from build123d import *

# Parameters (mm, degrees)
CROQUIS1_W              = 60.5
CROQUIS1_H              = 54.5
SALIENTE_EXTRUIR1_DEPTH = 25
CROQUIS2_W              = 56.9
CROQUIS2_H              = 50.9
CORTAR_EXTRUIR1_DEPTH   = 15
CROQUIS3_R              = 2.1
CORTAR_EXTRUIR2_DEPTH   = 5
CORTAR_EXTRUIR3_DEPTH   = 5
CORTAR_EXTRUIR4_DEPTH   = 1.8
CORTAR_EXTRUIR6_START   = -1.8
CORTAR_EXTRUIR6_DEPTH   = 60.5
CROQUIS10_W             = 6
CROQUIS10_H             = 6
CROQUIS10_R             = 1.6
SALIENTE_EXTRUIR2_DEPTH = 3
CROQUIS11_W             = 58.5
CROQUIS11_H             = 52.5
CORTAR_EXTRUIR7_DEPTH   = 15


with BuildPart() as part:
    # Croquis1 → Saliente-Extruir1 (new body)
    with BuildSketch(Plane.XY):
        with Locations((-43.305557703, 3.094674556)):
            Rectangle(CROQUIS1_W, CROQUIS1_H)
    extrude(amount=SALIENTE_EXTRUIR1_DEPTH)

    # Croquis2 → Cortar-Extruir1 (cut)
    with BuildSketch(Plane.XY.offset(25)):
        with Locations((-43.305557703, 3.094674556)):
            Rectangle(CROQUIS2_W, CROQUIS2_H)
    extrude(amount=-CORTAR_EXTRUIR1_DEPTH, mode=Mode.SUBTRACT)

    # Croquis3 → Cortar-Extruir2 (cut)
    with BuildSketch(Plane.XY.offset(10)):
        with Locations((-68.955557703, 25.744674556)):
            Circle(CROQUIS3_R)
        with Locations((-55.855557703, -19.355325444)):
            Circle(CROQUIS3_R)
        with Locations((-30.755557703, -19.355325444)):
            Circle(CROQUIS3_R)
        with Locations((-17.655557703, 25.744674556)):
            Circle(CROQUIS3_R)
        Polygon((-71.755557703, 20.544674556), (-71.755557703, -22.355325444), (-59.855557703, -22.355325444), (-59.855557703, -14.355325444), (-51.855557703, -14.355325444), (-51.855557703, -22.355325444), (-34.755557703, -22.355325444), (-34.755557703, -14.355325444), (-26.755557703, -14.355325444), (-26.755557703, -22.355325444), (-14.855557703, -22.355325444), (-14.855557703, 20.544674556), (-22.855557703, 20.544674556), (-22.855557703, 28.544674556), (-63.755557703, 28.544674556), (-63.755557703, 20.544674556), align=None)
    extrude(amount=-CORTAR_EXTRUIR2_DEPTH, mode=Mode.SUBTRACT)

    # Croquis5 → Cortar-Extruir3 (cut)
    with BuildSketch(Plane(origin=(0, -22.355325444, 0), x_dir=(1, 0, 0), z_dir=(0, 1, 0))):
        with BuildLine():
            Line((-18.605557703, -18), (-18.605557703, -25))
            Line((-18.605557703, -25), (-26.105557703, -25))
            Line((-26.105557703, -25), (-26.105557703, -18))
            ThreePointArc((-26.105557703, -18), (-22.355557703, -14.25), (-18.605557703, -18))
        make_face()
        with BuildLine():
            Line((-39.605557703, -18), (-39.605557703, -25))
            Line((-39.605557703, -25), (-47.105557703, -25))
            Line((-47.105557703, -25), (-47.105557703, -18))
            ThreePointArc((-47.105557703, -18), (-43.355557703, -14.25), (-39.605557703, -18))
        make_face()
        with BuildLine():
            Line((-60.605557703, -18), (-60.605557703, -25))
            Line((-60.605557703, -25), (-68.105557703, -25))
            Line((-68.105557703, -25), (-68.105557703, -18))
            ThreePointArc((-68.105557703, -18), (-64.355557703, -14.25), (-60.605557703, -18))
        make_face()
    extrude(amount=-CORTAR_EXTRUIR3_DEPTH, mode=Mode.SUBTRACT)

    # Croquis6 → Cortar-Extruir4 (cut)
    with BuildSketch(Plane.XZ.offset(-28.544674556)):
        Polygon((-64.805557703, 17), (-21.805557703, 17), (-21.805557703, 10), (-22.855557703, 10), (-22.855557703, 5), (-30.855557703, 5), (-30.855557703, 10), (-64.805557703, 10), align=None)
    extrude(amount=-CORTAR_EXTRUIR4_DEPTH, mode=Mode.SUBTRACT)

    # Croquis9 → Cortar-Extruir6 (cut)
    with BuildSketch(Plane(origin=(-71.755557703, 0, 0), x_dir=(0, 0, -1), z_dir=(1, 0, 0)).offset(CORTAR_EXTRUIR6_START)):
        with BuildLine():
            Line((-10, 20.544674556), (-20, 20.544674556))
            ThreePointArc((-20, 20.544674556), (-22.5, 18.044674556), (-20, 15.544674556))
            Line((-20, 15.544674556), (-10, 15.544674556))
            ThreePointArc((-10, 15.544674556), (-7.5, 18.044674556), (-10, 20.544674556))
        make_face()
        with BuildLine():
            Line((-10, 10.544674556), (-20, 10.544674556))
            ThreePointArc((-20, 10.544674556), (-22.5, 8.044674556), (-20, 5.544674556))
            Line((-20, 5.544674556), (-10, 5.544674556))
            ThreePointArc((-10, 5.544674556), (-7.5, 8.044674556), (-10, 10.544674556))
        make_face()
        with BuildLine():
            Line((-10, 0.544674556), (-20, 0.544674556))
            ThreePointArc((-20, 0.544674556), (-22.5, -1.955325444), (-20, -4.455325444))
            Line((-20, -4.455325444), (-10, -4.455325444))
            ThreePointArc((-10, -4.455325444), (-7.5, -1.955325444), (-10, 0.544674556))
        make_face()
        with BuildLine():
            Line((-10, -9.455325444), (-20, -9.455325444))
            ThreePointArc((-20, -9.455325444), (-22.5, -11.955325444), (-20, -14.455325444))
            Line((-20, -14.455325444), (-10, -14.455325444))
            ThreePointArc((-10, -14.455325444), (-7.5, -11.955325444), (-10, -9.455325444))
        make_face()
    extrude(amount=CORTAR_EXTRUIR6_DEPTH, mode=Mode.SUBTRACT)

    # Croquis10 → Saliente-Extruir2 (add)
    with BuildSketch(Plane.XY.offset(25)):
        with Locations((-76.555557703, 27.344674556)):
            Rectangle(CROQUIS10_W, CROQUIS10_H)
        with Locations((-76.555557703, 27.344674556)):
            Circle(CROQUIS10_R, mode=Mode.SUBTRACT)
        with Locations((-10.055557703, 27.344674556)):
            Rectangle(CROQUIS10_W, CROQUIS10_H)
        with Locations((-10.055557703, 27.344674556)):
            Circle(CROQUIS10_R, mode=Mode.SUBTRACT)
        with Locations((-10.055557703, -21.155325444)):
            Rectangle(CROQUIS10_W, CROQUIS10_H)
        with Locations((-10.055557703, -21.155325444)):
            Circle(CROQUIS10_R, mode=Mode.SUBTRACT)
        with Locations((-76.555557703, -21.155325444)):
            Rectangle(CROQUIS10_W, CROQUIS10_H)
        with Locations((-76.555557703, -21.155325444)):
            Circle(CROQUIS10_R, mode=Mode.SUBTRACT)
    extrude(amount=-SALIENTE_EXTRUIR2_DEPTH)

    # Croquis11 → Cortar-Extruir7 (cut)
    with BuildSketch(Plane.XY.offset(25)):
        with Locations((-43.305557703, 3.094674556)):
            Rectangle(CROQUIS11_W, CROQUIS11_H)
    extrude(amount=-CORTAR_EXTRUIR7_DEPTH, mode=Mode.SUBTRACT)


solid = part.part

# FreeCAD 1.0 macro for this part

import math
import FreeCAD as App
import Part
import Sketcher

V = App.Vector
Q = App.Units.Quantity


def add_polygon(sketch, points):
    """Adds a closed chain of lines whose ends are joined by coincident constraints."""
    first, n = sketch.GeometryCount, len(points)
    for a, b in zip(points, points[1:] + points[:1]):
        sketch.addGeometry(Part.LineSegment(App.Vector(*a, 0), App.Vector(*b, 0)), False)
    for i in range(n):
        sketch.addConstraint(Sketcher.Constraint("Coincident", first + i, 2, first + (i + 1) % n, 1))

doc = App.newDocument("Part")
body = doc.addObject("PartDesign::Body", "Body")

# Sketch on XY plane
sketch1 = body.newObject("Sketcher::SketchObject", "Sketch")
sketch1.AttachmentSupport = (doc.getObject("XY_Plane"), [""])
sketch1.MapMode = "FlatFace"
add_polygon(sketch1, [(-74, 30), (-74, -24), (-13, -24), (-13, 30)])  # lines 0-3
sketch1.addConstraint([
    Sketcher.Constraint("Vertical", 0),
    Sketcher.Constraint("Horizontal", 1),
    Sketcher.Constraint("Vertical", 2),
    Sketcher.Constraint("Horizontal", 3),
    Sketcher.Constraint("DistanceX", 1, 1, 1, 2, Q("60.5 mm")),
    Sketcher.Constraint("DistanceY", 0, 2, 0, 1, Q("54.5 mm")),
    Sketcher.Constraint("DistanceX", 0, 2, -1, 1, Q("73.555558 mm")),
    Sketcher.Constraint("DistanceY", 0, 2, -1, 1, Q("24.155325 mm")),
])
pad1 = body.newObject("PartDesign::Pad", "Pad")
pad1.Profile = sketch1
pad1.Length = 25

# Sketch on XY plane
sketch2 = body.newObject("Sketcher::SketchObject", "Sketch001")
sketch2.AttachmentSupport = (doc.getObject("XY_Plane"), [""])
sketch2.MapMode = "FlatFace"
sketch2.AttachmentOffset = App.Placement(V(0, 0, 25), App.Rotation())
add_polygon(sketch2, [(-72, 29), (-72, -22), (-15, -22), (-15, 29)])  # lines 0-3
sketch2.addConstraint([
    Sketcher.Constraint("Vertical", 0),
    Sketcher.Constraint("Horizontal", 1),
    Sketcher.Constraint("Vertical", 2),
    Sketcher.Constraint("Horizontal", 3),
    Sketcher.Constraint("DistanceX", 1, 1, 1, 2, Q("56.9 mm")),
    Sketcher.Constraint("DistanceY", 0, 2, 0, 1, Q("50.9 mm")),
    Sketcher.Constraint("DistanceX", 0, 2, -1, 1, Q("71.755558 mm")),
    Sketcher.Constraint("DistanceY", 0, 2, -1, 1, Q("22.355325 mm")),
])
pocket1 = body.newObject("PartDesign::Pocket", "Pocket")
pocket1.Profile = sketch2
pocket1.Length = 15

# Sketch on XY plane
sketch3 = body.newObject("Sketcher::SketchObject", "Sketch002")
sketch3.AttachmentSupport = (doc.getObject("XY_Plane"), [""])
sketch3.MapMode = "FlatFace"
sketch3.AttachmentOffset = App.Placement(V(0, 0, 10), App.Rotation())
sketch3.addGeometry(Part.Circle(V(-69, 25.7, 0), V(0, 0, 1), 2.1), False)  # 0
sketch3.addGeometry(Part.Circle(V(-55.9, -19.4, 0), V(0, 0, 1), 2.1), False)  # 1
sketch3.addGeometry(Part.Circle(V(-30.8, -19.4, 0), V(0, 0, 1), 2.1), False)  # 2
sketch3.addGeometry(Part.Circle(V(-17.7, 25.7, 0), V(0, 0, 1), 2.1), False)  # 3
add_polygon(sketch3, [(-71.8, 20.5), (-71.8, -22.4), (-59.9, -22.4), (-59.9, -14.4), (-51.9, -14.4), (-51.9, -22.4), (-34.8, -22.4), (-34.8, -14.4), (-26.8, -14.4), (-26.8, -22.4), (-14.9, -22.4), (-14.9, 20.5), (-22.9, 20.5), (-22.9, 28.5), (-63.8, 28.5), (-63.8, 20.5)])  # lines 4-19
sketch3.addConstraint([
    Sketcher.Constraint("Vertical", 4),
    Sketcher.Constraint("Horizontal", 5),
    Sketcher.Constraint("Vertical", 6),
    Sketcher.Constraint("Horizontal", 7),
    Sketcher.Constraint("Vertical", 8),
    Sketcher.Constraint("Horizontal", 9),
    Sketcher.Constraint("Vertical", 10),
    Sketcher.Constraint("Horizontal", 11),
    Sketcher.Constraint("Vertical", 12),
    Sketcher.Constraint("Horizontal", 13),
    Sketcher.Constraint("Vertical", 14),
    Sketcher.Constraint("Horizontal", 15),
    Sketcher.Constraint("Vertical", 16),
    Sketcher.Constraint("Horizontal", 17),
    Sketcher.Constraint("Vertical", 18),
    Sketcher.Constraint("Horizontal", 19),
    Sketcher.Constraint("Equal", 0, 1),
    Sketcher.Constraint("Equal", 1, 2),
    Sketcher.Constraint("Equal", 2, 3),
    Sketcher.Constraint("Horizontal", 1, 3, 2, 3),
    Sketcher.Constraint("Horizontal", 0, 3, 3, 3),
    Sketcher.Constraint("Horizontal", 5, 2, 8, 2),
    Sketcher.Constraint("Horizontal", 7, 2, 10, 2),
    Sketcher.Constraint("Horizontal", 9, 2, 12, 2),
    Sketcher.Constraint("Horizontal", 15, 2, 18, 2),
    Sketcher.Constraint("Equal", 7, 11),
    Sketcher.Constraint("Equal", 5, 13),
    Sketcher.Constraint("Equal", 11, 15),
    Sketcher.Constraint("Equal", 15, 19),
    Sketcher.Constraint("Equal", 19, 6),
    Sketcher.Constraint("Equal", 12, 16),
    Sketcher.Constraint("Diameter", 0, Q("4.2 mm")),
    Sketcher.Constraint("DistanceX", 7, 1, 7, 2, Q("8 mm")),
    Sketcher.Constraint("DistanceX", 5, 1, 5, 2, Q("11.9 mm")),
    Sketcher.Constraint("DistanceX", 9, 1, 9, 2, Q("17.1 mm")),
    Sketcher.Constraint("DistanceY", 4, 2, 4, 1, Q("42.9 mm")),
    Sketcher.Constraint("DistanceY", 4, 2, 1, 3, Q("3 mm")),
    Sketcher.Constraint("DistanceX", 4, 2, 2, 3, Q("41 mm")),
    Sketcher.Constraint("DistanceX", 5, 2, 1, 3, Q("4 mm")),
    Sketcher.Constraint("DistanceX", 0, 3, 1, 3, Q("13.1 mm")),
    Sketcher.Constraint("DistanceY", 1, 3, 0, 3, Q("45.1 mm")),
    Sketcher.Constraint("DistanceX", 2, 3, 3, 3, Q("13.1 mm")),
    Sketcher.Constraint("DistanceX", 0, 3, -1, 1, Q("68.955558 mm")),
    Sketcher.Constraint("DistanceY", -1, 1, 0, 3, Q("25.744675 mm")),
])
pocket2 = body.newObject("PartDesign::Pocket", "Pocket001")
pocket2.Profile = sketch3
pocket2.Length = 5

# Sketch on XZ plane
sketch4 = body.newObject("Sketcher::SketchObject", "Sketch003")
sketch4.AttachmentSupport = (doc.getObject("XZ_Plane"), [""])
sketch4.MapMode = "FlatFace"
sketch4.AttachmentOffset = App.Placement(V(0, 0, 22.355325), App.Rotation())
sketch4.addGeometry([
    Part.LineSegment(V(-18.6, 25, 0), V(-18.6, 18, 0)),  # 0
    Part.ArcOfCircle(Part.Circle(V(-22.4, 18, 0), V(0, 0, 1), 3.8), math.radians(180), math.radians(360)),  # 1
    Part.LineSegment(V(-26.1, 18, 0), V(-26.1, 25, 0)),  # 2
    Part.LineSegment(V(-26.1, 25, 0), V(-18.6, 25, 0)),  # 3
    Part.LineSegment(V(-39.6, 25, 0), V(-39.6, 18, 0)),  # 4
    Part.ArcOfCircle(Part.Circle(V(-43.4, 18, 0), V(0, 0, 1), 3.8), math.radians(180), math.radians(360)),  # 5
    Part.LineSegment(V(-47.1, 18, 0), V(-47.1, 25, 0)),  # 6
    Part.LineSegment(V(-47.1, 25, 0), V(-39.6, 25, 0)),  # 7
    Part.LineSegment(V(-60.6, 25, 0), V(-60.6, 18, 0)),  # 8
    Part.ArcOfCircle(Part.Circle(V(-64.4, 18, 0), V(0, 0, 1), 3.8), math.radians(180), math.radians(360)),  # 9
    Part.LineSegment(V(-68.1, 18, 0), V(-68.1, 25, 0)),  # 10
    Part.LineSegment(V(-68.1, 25, 0), V(-60.6, 25, 0)),  # 11
], False)
sketch4.addConstraint([
    Sketcher.Constraint("Tangent", 0, 2, 1, 2),
    Sketcher.Constraint("Tangent", 1, 1, 2, 1),
    Sketcher.Constraint("Coincident", 2, 2, 3, 1),
    Sketcher.Constraint("Coincident", 3, 2, 0, 1),
    Sketcher.Constraint("Tangent", 4, 2, 5, 2),
    Sketcher.Constraint("Tangent", 5, 1, 6, 1),
    Sketcher.Constraint("Coincident", 6, 2, 7, 1),
    Sketcher.Constraint("Coincident", 7, 2, 4, 1),
    Sketcher.Constraint("Tangent", 8, 2, 9, 2),
    Sketcher.Constraint("Tangent", 9, 1, 10, 1),
    Sketcher.Constraint("Coincident", 10, 2, 11, 1),
    Sketcher.Constraint("Coincident", 11, 2, 8, 1),
    Sketcher.Constraint("Vertical", 0),
    Sketcher.Constraint("Vertical", 2),
    Sketcher.Constraint("Horizontal", 3),
    Sketcher.Constraint("Vertical", 4),
    Sketcher.Constraint("Vertical", 6),
    Sketcher.Constraint("Horizontal", 7),
    Sketcher.Constraint("Vertical", 8),
    Sketcher.Constraint("Vertical", 10),
    Sketcher.Constraint("Horizontal", 11),
    Sketcher.Constraint("Equal", 1, 5),
    Sketcher.Constraint("Equal", 5, 9),
    Sketcher.Constraint("Horizontal", 1, 3, 5, 3),
    Sketcher.Constraint("Horizontal", 5, 3, 9, 3),
    Sketcher.Constraint("Horizontal", 3, 2, 6, 2),
    Sketcher.Constraint("Horizontal", 7, 2, 10, 2),
    Sketcher.Constraint("DistanceY", 0, 2, 0, 1, Q("7 mm")),
    Sketcher.Constraint("Radius", 1, Q("3.75 mm")),
    Sketcher.Constraint("DistanceY", -1, 1, 1, 3, Q("18 mm")),
    Sketcher.Constraint("DistanceX", 5, 3, 1, 3, Q("21 mm")),
    Sketcher.Constraint("DistanceX", 9, 3, 5, 3, Q("21 mm")),
    Sketcher.Constraint("DistanceX", 1, 3, -1, 1, Q("22.355558 mm")),
])
pocket3 = body.newObject("PartDesign::Pocket", "Pocket002")
pocket3.Profile = sketch4
pocket3.Length = 5
pocket3.Reversed = True

# Sketch on XZ plane
sketch5 = body.newObject("Sketcher::SketchObject", "Sketch004")
sketch5.AttachmentSupport = (doc.getObject("XZ_Plane"), [""])
sketch5.MapMode = "FlatFace"
sketch5.AttachmentOffset = App.Placement(V(0, 0, -28.544675), App.Rotation())
add_polygon(sketch5, [(-21.8, 17), (-64.8, 17), (-64.8, 10), (-30.9, 10), (-30.9, 5), (-22.9, 5), (-22.9, 10), (-21.8, 10)])  # lines 0-7
sketch5.addConstraint([
    Sketcher.Constraint("Horizontal", 0),
    Sketcher.Constraint("Vertical", 1),
    Sketcher.Constraint("Horizontal", 2),
    Sketcher.Constraint("Vertical", 3),
    Sketcher.Constraint("Horizontal", 4),
    Sketcher.Constraint("Vertical", 5),
    Sketcher.Constraint("Horizontal", 6),
    Sketcher.Constraint("Vertical", 7),
    Sketcher.Constraint("Horizontal", 2, 2, 5, 2),
    Sketcher.Constraint("DistanceX", 0, 2, 0, 1, Q("43 mm")),
    Sketcher.Constraint("DistanceX", 4, 1, 4, 2, Q("8 mm")),
    Sketcher.Constraint("DistanceY", 1, 2, 1, 1, Q("7 mm")),
    Sketcher.Constraint("DistanceY", 3, 2, 3, 1, Q("5 mm")),
    Sketcher.Constraint("DistanceY", -1, 1, 0, 2, Q("17 mm")),
    Sketcher.Constraint("DistanceX", 2, 1, 2, 2, Q("33.95 mm")),
    Sketcher.Constraint("DistanceX", 0, 2, -1, 1, Q("64.805558 mm")),
])
pocket4 = body.newObject("PartDesign::Pocket", "Pocket003")
pocket4.Profile = sketch5
pocket4.Length = 1.8

# Sketch on YZ plane
sketch6 = body.newObject("Sketcher::SketchObject", "Sketch005")
sketch6.AttachmentSupport = (doc.getObject("YZ_Plane"), [""])
sketch6.MapMode = "FlatFace"
sketch6.AttachmentOffset = App.Placement(V(0, 0, -73.555558), App.Rotation())
sketch6.addGeometry([
    Part.LineSegment(V(20.5, 10, 0), V(20.5, 20, 0)),  # 0
    Part.ArcOfCircle(Part.Circle(V(18, 20, 0), V(0, 0, 1), 2.5), math.radians(0), math.radians(180)),  # 1
    Part.LineSegment(V(15.5, 20, 0), V(15.5, 10, 0)),  # 2
    Part.ArcOfCircle(Part.Circle(V(18, 10, 0), V(0, 0, 1), 2.5), math.radians(180), math.radians(360)),  # 3
    Part.LineSegment(V(10.5, 10, 0), V(10.5, 20, 0)),  # 4
    Part.ArcOfCircle(Part.Circle(V(8, 20, 0), V(0, 0, 1), 2.5), math.radians(0), math.radians(180)),  # 5
    Part.LineSegment(V(5.5, 20, 0), V(5.5, 10, 0)),  # 6
    Part.ArcOfCircle(Part.Circle(V(8, 10, 0), V(0, 0, 1), 2.5), math.radians(180), math.radians(360)),  # 7
    Part.LineSegment(V(0.5, 10, 0), V(0.5, 20, 0)),  # 8
    Part.ArcOfCircle(Part.Circle(V(-2, 20, 0), V(0, 0, 1), 2.5), math.radians(0), math.radians(180)),  # 9
    Part.LineSegment(V(-4.5, 20, 0), V(-4.5, 10, 0)),  # 10
    Part.ArcOfCircle(Part.Circle(V(-2, 10, 0), V(0, 0, 1), 2.5), math.radians(180), math.radians(360)),  # 11
    Part.LineSegment(V(-9.5, 10, 0), V(-9.5, 20, 0)),  # 12
    Part.ArcOfCircle(Part.Circle(V(-12, 20, 0), V(0, 0, 1), 2.5), math.radians(0), math.radians(180)),  # 13
    Part.LineSegment(V(-14.5, 20, 0), V(-14.5, 10, 0)),  # 14
    Part.ArcOfCircle(Part.Circle(V(-12, 10, 0), V(0, 0, 1), 2.5), math.radians(180), math.radians(360)),  # 15
], False)
sketch6.addConstraint([
    Sketcher.Constraint("Tangent", 0, 2, 1, 1),
    Sketcher.Constraint("Tangent", 1, 2, 2, 1),
    Sketcher.Constraint("Tangent", 2, 2, 3, 1),
    Sketcher.Constraint("Tangent", 3, 2, 0, 1),
    Sketcher.Constraint("Tangent", 4, 2, 5, 1),
    Sketcher.Constraint("Tangent", 5, 2, 6, 1),
    Sketcher.Constraint("Tangent", 6, 2, 7, 1),
    Sketcher.Constraint("Tangent", 7, 2, 4, 1),
    Sketcher.Constraint("Tangent", 8, 2, 9, 1),
    Sketcher.Constraint("Tangent", 9, 2, 10, 1),
    Sketcher.Constraint("Tangent", 10, 2, 11, 1),
    Sketcher.Constraint("Tangent", 11, 2, 8, 1),
    Sketcher.Constraint("Tangent", 12, 2, 13, 1),
    Sketcher.Constraint("Tangent", 13, 2, 14, 1),
    Sketcher.Constraint("Tangent", 14, 2, 15, 1),
    Sketcher.Constraint("Tangent", 15, 2, 12, 1),
    Sketcher.Constraint("Vertical", 0),
    Sketcher.Constraint("Vertical", 2),
    Sketcher.Constraint("Vertical", 4),
    Sketcher.Constraint("Vertical", 6),
    Sketcher.Constraint("Vertical", 8),
    Sketcher.Constraint("Vertical", 10),
    Sketcher.Constraint("Vertical", 12),
    Sketcher.Constraint("Vertical", 14),
    Sketcher.Constraint("Equal", 3, 5),
    Sketcher.Constraint("Equal", 7, 9),
    Sketcher.Constraint("Equal", 11, 13),
    Sketcher.Constraint("Horizontal", 1, 3, 5, 3),
    Sketcher.Constraint("Horizontal", 3, 3, 7, 3),
    Sketcher.Constraint("Horizontal", 5, 3, 9, 3),
    Sketcher.Constraint("Horizontal", 7, 3, 11, 3),
    Sketcher.Constraint("Horizontal", 9, 3, 13, 3),
    Sketcher.Constraint("Horizontal", 11, 3, 15, 3),
    Sketcher.Constraint("Radius", 1, Q("2.5 mm")),
    Sketcher.Constraint("DistanceY", 0, 1, 0, 2, Q("10 mm")),
    Sketcher.Constraint("DistanceY", -1, 1, 1, 3, Q("20 mm")),
    Sketcher.Constraint("DistanceX", 5, 3, 1, 3, Q("10 mm")),
    Sketcher.Constraint("DistanceX", 9, 3, 5, 3, Q("10 mm")),
    Sketcher.Constraint("DistanceX", 13, 3, 9, 3, Q("10 mm")),
    Sketcher.Constraint("DistanceX", -1, 1, 1, 3, Q("18.044675 mm")),
])
pocket5 = body.newObject("PartDesign::Pocket", "Pocket004")
pocket5.Profile = sketch6
pocket5.Length = 60.5
pocket5.Reversed = True

# Sketch on XY plane
sketch7 = body.newObject("Sketcher::SketchObject", "Sketch006")
sketch7.AttachmentSupport = (doc.getObject("XY_Plane"), [""])
sketch7.MapMode = "FlatFace"
sketch7.AttachmentOffset = App.Placement(V(0, 0, 25), App.Rotation())
add_polygon(sketch7, [(-79.6, 30.3), (-79.6, 24.3), (-73.6, 24.3), (-73.6, 30.3)])  # lines 0-3
sketch7.addGeometry(Part.Circle(V(-76.6, 27.3, 0), V(0, 0, 1), 1.6), False)  # 4
add_polygon(sketch7, [(-13.1, 30.3), (-13.1, 24.3), (-7.1, 24.3), (-7.1, 30.3)])  # lines 5-8
sketch7.addGeometry(Part.Circle(V(-10.1, 27.3, 0), V(0, 0, 1), 1.6), False)  # 9
add_polygon(sketch7, [(-13.1, -18.2), (-13.1, -24.2), (-7.1, -24.2), (-7.1, -18.2)])  # lines 10-13
sketch7.addGeometry(Part.Circle(V(-10.1, -21.2, 0), V(0, 0, 1), 1.6), False)  # 14
add_polygon(sketch7, [(-79.6, -18.2), (-79.6, -24.2), (-73.6, -24.2), (-73.6, -18.2)])  # lines 15-18
sketch7.addGeometry(Part.Circle(V(-76.6, -21.2, 0), V(0, 0, 1), 1.6), False)  # 19
sketch7.addConstraint([
    Sketcher.Constraint("Vertical", 0),
    Sketcher.Constraint("Horizontal", 1),
    Sketcher.Constraint("Vertical", 2),
    Sketcher.Constraint("Horizontal", 3),
    Sketcher.Constraint("Vertical", 5),
    Sketcher.Constraint("Horizontal", 6),
    Sketcher.Constraint("Vertical", 7),
    Sketcher.Constraint("Horizontal", 8),
    Sketcher.Constraint("Vertical", 10),
    Sketcher.Constraint("Horizontal", 11),
    Sketcher.Constraint("Vertical", 12),
    Sketcher.Constraint("Horizontal", 13),
    Sketcher.Constraint("Vertical", 15),
    Sketcher.Constraint("Horizontal", 16),
    Sketcher.Constraint("Vertical", 17),
    Sketcher.Constraint("Horizontal", 18),
    Sketcher.Constraint("Equal", 4, 9),
    Sketcher.Constraint("Equal", 9, 14),
    Sketcher.Constraint("Equal", 14, 19),
    Sketcher.Constraint("Horizontal", 4, 3, 9, 3),
    Sketcher.Constraint("Horizontal", 14, 3, 19, 3),
    Sketcher.Constraint("Horizontal", 1, 2, 5, 2),
    Sketcher.Constraint("Horizontal", 3, 2, 7, 2),
    Sketcher.Constraint("Horizontal", 11, 2, 15, 2),
    Sketcher.Constraint("Horizontal", 13, 2, 17, 2),
    Sketcher.Constraint("Vertical", 9, 3, 14, 3),
    Sketcher.Constraint("Vertical", 4, 3, 19, 3),
    Sketcher.Constraint("Vertical", 8, 2, 10, 2),
    Sketcher.Constraint("Vertical", 7, 2, 11, 2),
    Sketcher.Constraint("Vertical", 3, 2, 15, 2),
    Sketcher.Constraint("Vertical", 2, 2, 16, 2),
    Sketcher.Constraint("Equal", 3, 6),
    Sketcher.Constraint("Equal", 18, 0),
    Sketcher.Constraint("Equal", 7, 10),
    Sketcher.Constraint("Diameter", 4, Q("3.2 mm")),
    Sketcher.Constraint("DistanceX", 1, 1, 1, 2, Q("6 mm")),
    Sketcher.Constraint("DistanceX", 0, 2, 4, 3, Q("3 mm")),
    Sketcher.Constraint("DistanceY", 0, 2, 4, 3, Q("3 mm")),
    Sketcher.Constraint("DistanceX", 5, 2, 9, 3, Q("3 mm")),
    Sketcher.Constraint("DistanceY", 10, 2, 14, 3, Q("3 mm")),
    Sketcher.Constraint("DistanceX", 4, 3, 9, 3, Q("66.5 mm")),
    Sketcher.Constraint("DistanceY", 14, 3, 9, 3, Q("48.5 mm")),
    Sketcher.Constraint("DistanceX", 4, 3, -1, 1, Q("76.555558 mm")),
    Sketcher.Constraint("DistanceY", -1, 1, 4, 3, Q("27.344675 mm")),
])
pad2 = body.newObject("PartDesign::Pad", "Pad001")
pad2.Profile = sketch7
pad2.Length = 3
pad2.Reversed = True

# Sketch on XY plane
sketch8 = body.newObject("Sketcher::SketchObject", "Sketch007")
sketch8.AttachmentSupport = (doc.getObject("XY_Plane"), [""])
sketch8.MapMode = "FlatFace"
sketch8.AttachmentOffset = App.Placement(V(0, 0, 25), App.Rotation())
add_polygon(sketch8, [(-73, 29), (-73, -23), (-14, -23), (-14, 29)])  # lines 0-3
sketch8.addConstraint([
    Sketcher.Constraint("Vertical", 0),
    Sketcher.Constraint("Horizontal", 1),
    Sketcher.Constraint("Vertical", 2),
    Sketcher.Constraint("Horizontal", 3),
    Sketcher.Constraint("DistanceX", 1, 1, 1, 2, Q("58.5 mm")),
    Sketcher.Constraint("DistanceY", 0, 2, 0, 1, Q("52.5 mm")),
    Sketcher.Constraint("DistanceX", 0, 2, -1, 1, Q("72.555558 mm")),
    Sketcher.Constraint("DistanceY", 0, 2, -1, 1, Q("23.155325 mm")),
])
pocket6 = body.newObject("PartDesign::Pocket", "Pocket005")
pocket6.Profile = sketch8
pocket6.Length = 15

doc.recompute()
